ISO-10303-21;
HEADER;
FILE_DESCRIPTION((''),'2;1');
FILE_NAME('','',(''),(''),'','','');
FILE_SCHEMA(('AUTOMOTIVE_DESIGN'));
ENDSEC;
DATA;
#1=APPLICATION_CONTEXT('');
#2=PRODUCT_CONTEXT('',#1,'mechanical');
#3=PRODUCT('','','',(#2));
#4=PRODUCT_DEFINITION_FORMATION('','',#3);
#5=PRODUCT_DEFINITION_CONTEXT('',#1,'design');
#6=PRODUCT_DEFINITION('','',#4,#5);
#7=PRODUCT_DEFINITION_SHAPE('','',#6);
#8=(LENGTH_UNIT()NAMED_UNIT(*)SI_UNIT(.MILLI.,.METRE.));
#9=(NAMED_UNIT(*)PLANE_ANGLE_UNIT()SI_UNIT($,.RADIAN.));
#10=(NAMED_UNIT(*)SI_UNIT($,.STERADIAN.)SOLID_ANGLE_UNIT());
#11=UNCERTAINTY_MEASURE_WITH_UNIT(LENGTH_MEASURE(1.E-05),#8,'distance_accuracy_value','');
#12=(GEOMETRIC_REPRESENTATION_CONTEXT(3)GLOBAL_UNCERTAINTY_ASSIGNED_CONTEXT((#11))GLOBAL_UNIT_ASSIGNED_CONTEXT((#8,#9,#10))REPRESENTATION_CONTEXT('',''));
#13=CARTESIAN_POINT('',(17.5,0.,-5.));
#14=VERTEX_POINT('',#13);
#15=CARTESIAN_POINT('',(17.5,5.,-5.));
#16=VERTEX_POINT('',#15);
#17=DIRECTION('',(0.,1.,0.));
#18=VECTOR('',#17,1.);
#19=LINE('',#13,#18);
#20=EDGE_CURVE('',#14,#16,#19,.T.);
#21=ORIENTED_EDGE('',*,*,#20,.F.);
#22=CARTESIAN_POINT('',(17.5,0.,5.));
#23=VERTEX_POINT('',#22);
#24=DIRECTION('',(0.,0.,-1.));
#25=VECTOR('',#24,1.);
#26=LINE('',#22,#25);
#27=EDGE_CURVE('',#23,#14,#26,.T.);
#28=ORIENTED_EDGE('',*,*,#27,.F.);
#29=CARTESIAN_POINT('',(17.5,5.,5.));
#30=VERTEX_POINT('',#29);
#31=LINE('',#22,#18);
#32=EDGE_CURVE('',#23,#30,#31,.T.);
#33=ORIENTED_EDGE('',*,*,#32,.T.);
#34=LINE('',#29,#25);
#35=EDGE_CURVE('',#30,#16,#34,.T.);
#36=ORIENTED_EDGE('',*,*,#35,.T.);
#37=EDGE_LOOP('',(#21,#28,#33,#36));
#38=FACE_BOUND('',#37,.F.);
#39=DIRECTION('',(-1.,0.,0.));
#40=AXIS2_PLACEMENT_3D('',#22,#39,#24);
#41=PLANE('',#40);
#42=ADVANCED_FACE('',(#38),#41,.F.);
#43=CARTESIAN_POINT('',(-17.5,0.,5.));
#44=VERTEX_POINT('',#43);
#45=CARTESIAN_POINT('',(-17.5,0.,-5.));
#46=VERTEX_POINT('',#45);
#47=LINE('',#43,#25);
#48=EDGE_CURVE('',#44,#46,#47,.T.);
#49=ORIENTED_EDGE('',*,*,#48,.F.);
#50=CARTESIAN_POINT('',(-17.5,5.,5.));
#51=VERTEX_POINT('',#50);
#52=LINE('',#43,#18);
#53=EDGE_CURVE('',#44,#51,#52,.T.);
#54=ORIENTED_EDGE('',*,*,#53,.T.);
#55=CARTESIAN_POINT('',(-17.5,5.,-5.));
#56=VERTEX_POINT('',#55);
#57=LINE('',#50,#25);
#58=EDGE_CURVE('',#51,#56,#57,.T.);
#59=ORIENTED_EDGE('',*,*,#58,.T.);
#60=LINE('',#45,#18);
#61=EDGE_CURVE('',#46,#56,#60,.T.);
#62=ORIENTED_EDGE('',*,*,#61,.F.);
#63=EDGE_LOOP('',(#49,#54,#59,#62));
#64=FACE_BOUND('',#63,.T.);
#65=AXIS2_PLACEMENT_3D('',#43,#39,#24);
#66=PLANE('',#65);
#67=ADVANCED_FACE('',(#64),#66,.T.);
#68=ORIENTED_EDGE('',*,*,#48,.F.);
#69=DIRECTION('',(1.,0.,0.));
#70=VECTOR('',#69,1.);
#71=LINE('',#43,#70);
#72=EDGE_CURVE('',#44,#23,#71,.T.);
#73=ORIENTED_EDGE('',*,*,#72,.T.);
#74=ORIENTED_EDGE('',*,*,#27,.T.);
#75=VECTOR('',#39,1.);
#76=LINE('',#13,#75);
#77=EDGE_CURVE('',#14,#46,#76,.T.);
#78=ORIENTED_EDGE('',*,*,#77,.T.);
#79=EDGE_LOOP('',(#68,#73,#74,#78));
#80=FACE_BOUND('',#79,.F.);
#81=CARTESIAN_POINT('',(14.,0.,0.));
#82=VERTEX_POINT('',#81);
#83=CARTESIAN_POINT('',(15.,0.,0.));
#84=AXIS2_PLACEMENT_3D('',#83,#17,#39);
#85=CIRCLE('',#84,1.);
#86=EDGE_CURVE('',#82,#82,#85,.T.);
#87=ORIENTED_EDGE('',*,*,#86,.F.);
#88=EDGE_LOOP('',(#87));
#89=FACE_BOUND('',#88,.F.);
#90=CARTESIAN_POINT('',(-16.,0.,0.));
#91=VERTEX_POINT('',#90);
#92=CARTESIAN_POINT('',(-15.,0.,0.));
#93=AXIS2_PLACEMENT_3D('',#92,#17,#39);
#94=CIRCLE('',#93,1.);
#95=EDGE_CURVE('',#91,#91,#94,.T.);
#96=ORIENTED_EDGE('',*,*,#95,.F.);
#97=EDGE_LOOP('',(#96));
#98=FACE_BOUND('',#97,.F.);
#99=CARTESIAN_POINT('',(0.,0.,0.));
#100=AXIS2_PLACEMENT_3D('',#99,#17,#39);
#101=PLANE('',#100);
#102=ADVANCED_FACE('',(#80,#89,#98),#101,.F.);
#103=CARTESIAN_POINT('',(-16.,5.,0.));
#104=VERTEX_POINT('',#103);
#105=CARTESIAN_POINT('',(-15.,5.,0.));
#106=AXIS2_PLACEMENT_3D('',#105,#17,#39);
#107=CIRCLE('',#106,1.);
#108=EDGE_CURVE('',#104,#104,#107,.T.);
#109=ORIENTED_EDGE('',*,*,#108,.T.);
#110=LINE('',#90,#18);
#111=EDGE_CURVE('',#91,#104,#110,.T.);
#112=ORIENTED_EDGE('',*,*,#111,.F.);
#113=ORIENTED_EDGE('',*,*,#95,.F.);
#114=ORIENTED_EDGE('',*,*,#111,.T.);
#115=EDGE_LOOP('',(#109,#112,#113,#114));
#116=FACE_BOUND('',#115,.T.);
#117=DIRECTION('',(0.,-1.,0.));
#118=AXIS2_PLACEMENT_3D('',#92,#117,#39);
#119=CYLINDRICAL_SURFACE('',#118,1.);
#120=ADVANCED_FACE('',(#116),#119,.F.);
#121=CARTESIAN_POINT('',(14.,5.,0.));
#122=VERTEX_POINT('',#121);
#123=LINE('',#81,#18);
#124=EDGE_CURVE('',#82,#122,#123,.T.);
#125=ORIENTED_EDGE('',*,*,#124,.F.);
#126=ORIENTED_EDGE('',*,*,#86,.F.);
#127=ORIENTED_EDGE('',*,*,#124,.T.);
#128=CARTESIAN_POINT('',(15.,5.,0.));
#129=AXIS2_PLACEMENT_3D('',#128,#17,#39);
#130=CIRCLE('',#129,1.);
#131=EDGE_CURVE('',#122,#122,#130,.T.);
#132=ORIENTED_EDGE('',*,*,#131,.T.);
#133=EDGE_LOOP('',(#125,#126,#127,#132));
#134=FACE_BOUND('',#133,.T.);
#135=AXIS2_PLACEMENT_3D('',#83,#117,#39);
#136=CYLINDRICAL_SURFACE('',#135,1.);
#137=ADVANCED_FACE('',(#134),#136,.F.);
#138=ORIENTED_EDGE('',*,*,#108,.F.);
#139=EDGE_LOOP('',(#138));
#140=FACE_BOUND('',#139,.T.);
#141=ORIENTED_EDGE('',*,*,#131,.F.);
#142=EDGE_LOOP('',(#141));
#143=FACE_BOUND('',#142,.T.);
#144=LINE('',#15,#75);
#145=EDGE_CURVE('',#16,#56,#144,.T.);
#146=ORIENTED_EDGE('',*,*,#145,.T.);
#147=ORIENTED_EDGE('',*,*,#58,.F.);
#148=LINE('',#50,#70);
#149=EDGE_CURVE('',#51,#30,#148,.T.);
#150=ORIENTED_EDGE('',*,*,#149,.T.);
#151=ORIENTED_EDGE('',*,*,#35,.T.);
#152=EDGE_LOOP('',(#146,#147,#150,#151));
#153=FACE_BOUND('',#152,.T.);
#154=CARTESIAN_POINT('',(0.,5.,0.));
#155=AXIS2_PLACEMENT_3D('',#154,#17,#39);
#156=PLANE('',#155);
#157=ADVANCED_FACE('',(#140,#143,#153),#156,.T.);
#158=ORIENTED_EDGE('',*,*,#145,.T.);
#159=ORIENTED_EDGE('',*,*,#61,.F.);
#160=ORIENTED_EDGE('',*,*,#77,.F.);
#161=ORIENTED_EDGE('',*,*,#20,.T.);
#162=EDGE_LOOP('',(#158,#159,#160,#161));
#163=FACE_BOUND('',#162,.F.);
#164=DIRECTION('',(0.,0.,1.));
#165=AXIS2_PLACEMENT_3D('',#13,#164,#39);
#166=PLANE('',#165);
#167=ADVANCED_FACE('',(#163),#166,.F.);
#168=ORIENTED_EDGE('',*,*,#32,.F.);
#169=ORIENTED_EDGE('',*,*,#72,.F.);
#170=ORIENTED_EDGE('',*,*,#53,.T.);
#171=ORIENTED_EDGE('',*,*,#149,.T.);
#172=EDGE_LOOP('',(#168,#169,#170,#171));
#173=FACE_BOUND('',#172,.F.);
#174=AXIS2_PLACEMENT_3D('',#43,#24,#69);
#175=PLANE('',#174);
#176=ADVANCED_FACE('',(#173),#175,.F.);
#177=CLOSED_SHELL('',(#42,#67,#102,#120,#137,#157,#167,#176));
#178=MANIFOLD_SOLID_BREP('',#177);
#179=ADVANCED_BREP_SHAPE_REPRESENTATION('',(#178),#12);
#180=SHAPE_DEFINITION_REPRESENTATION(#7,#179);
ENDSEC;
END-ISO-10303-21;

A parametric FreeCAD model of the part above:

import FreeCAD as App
import Part
import Sketcher
from FreeCAD import Vector


def add_polygon(sketch, points):
    """Adds a closed chain of lines whose ends are joined by coincident constraints."""
    first, n = sketch.GeometryCount, len(points)
    for a, b in zip(points, points[1:] + points[:1]):
        sketch.addGeometry(Part.LineSegment(App.Vector(*a, 0), App.Vector(*b, 0)), False)
    for i in range(n):
        sketch.addConstraint(Sketcher.Constraint("Coincident", first + i, 2, first + (i + 1) % n, 1))

doc = App.newDocument("Part")
body = doc.addObject("PartDesign::Body", "Body")

# Sketch on XZ plane
sketch1 = body.newObject("Sketcher::SketchObject", "Sketch")
sketch1.AttachmentSupport = (doc.getObject("XZ_Plane"), [""])
sketch1.MapMode = "FlatFace"
add_polygon(sketch1, [(17.5, 5), (17.5, -5), (-17.5, -5), (-17.5, 5)])  # lines 0-3
sketch1.addGeometry(Part.Circle(Vector(15, 0, 0), Vector(0, 0, 1), 1), False)  # 4
sketch1.addGeometry(Part.Circle(Vector(-15, 0, 0), Vector(0, 0, 1), 1), False)  # 5
sketch1.addConstraint(Sketcher.Constraint("Vertical", 0))
sketch1.addConstraint(Sketcher.Constraint("Horizontal", 1))
sketch1.addConstraint(Sketcher.Constraint("Vertical", 2))
sketch1.addConstraint(Sketcher.Constraint("Horizontal", 3))
sketch1.addConstraint(Sketcher.Constraint("Equal", 4, 5))
sketch1.addConstraint(Sketcher.Constraint("Symmetric", 4, 3, 5, 3, -1, 1))
sketch1.addConstraint(Sketcher.Constraint("Symmetric", 0, 2, 2, 2, -1, 1))
sketch1.addConstraint(Sketcher.Constraint("PointOnObject", 4, 3, -1))
sketch1.addConstraint(Sketcher.Constraint("Diameter", 4, 2.0))
sketch1.addConstraint(Sketcher.Constraint("DistanceX", 1, 2, 1, 1, 35.0))
sketch1.addConstraint(Sketcher.Constraint("DistanceY", 0, 2, 0, 1, 10.0))
sketch1.addConstraint(Sketcher.Constraint("DistanceX", 4, 3, 0, 2, 2.5))
pad1 = body.newObject("PartDesign::Pad", "Pad")
pad1.Profile = sketch1
pad1.Length = 5
pad1.Reversed = True

doc.recompute()
